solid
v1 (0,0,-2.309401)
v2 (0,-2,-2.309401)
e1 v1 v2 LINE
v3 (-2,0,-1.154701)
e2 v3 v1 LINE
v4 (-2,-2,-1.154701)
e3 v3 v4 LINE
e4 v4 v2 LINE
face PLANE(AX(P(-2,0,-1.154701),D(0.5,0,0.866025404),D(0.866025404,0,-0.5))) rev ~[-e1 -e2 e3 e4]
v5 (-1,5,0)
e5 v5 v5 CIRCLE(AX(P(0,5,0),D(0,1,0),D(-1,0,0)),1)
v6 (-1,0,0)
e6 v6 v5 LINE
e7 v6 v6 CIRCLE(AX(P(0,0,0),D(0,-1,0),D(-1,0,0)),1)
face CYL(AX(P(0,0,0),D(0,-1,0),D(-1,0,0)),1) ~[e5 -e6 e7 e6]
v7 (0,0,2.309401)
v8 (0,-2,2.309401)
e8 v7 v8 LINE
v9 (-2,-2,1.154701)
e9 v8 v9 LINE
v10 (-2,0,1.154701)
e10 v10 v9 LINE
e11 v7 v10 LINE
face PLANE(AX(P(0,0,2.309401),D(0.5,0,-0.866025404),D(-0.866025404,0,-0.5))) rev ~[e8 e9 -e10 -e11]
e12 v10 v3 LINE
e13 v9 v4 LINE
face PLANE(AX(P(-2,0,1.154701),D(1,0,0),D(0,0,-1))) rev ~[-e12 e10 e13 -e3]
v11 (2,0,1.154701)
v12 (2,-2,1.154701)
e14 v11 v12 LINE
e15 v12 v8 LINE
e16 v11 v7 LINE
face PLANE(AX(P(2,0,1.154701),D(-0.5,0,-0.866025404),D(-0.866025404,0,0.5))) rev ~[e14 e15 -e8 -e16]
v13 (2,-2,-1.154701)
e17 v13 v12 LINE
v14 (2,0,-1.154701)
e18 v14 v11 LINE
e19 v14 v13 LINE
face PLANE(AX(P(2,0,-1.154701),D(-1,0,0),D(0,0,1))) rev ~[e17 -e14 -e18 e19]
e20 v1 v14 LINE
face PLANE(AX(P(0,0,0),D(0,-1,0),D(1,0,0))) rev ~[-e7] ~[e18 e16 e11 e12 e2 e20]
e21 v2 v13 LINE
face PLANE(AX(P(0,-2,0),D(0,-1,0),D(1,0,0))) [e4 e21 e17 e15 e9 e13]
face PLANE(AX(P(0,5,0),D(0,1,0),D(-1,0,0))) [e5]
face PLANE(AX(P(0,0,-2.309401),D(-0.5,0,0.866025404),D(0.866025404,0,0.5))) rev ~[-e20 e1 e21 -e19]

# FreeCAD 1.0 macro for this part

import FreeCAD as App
import Part
import Sketcher

V = App.Vector
Q = App.Units.Quantity

doc = App.newDocument("Part")
body = doc.addObject("PartDesign::Body", "Body")

sketch1 = body.newObject("Sketcher::SketchObject", "Sketch")
sketch1.AttachmentSupport = (doc.getObject("XZ_Plane"), [""])
sketch1.MapMode = "FlatFace"
sketch1.addGeometry([
    Part.LineSegment(V(-2, 1.2, 0), V(-2, -1.2, 0)),
    Part.LineSegment(V(-2, -1.2, 0), V(0, -2.3, 0)),
    Part.LineSegment(V(0, -2.3, 0), V(2, -1.2, 0)),
    Part.LineSegment(V(2, -1.2, 0), V(2, 1.2, 0)),
    Part.LineSegment(V(2, 1.2, 0), V(0, 2.3, 0)),
    Part.LineSegment(V(0, 2.3, 0), V(-2, 1.2, 0)),
], False)
sketch1.addConstraint([
    Sketcher.Constraint("Coincident", 0, 2, 1, 1),
    Sketcher.Constraint("Coincident", 1, 2, 2, 1),
    Sketcher.Constraint("Coincident", 2, 2, 3, 1),
    Sketcher.Constraint("Coincident", 3, 2, 4, 1),
    Sketcher.Constraint("Coincident", 4, 2, 5, 1),
    Sketcher.Constraint("Coincident", 5, 2, 0, 1),
    Sketcher.Constraint("Vertical", 0),
    Sketcher.Constraint("Vertical", 3),
    Sketcher.Constraint("Symmetric", 0, 2, 3, 2, -1, 1),
    Sketcher.Constraint("Symmetric", 1, 2, 4, 2, -1, 1),
    Sketcher.Constraint("PointOnObject", 1, 2, -2),
    Sketcher.Constraint("Parallel", 2, 5),
    Sketcher.Constraint("Horizontal", 0, 2, 2, 2),
    Sketcher.Constraint("Angle", 1, Q("-30 deg")),
    Sketcher.Constraint("DistanceX", 0, 2, -1, 1, Q("2 mm")),
    Sketcher.Constraint("DistanceY", 0, 2, 0, 1, Q("2.309401 mm")),
])
pad1 = body.newObject("PartDesign::Pad", "Pad")
pad1.Profile = sketch1
pad1.Length = 2

sketch2 = body.newObject("Sketcher::SketchObject", "Sketch001")
sketch2.AttachmentSupport = (doc.getObject("XZ_Plane"), [""])
sketch2.MapMode = "FlatFace"
sketch2.addGeometry(Part.Circle(V(0, 0, 0), V(0, 0, 1), 1), False)
sketch2.addConstraint([
    Sketcher.Constraint("Coincident", 0, 3, -1, 1),
    Sketcher.Constraint("Diameter", 0, Q("2 mm")),
])
pad2 = body.newObject("PartDesign::Pad", "Pad001")
pad2.Profile = sketch2
pad2.Length = 5
pad2.Reversed = True

sketch3 = body.newObject("Sketcher::SketchObject", "Sketch002")
sketch3.AttachmentSupport = (doc.getObject("XZ_Plane"), [""])
sketch3.MapMode = "FlatFace"
sketch3.addGeometry([
    Part.LineSegment(V(-2, 1.2, 0), V(-2, -1.2, 0)),
    Part.LineSegment(V(-2, -1.2, 0), V(0, -2.3, 0)),
    Part.LineSegment(V(0, -2.3, 0), V(2, -1.2, 0)),
    Part.LineSegment(V(2, -1.2, 0), V(2, 1.2, 0)),
    Part.LineSegment(V(2, 1.2, 0), V(0, 2.3, 0)),
    Part.LineSegment(V(0, 2.3, 0), V(-2, 1.2, 0)),
    Part.Circle(V(0, 0, 0), V(0, 0, 1), 1),
], False)
sketch3.addConstraint([
    Sketcher.Constraint("Coincident", 0, 2, 1, 1),
    Sketcher.Constraint("Coincident", 1, 2, 2, 1),
    Sketcher.Constraint("Coincident", 2, 2, 3, 1),
    Sketcher.Constraint("Coincident", 3, 2, 4, 1),
    Sketcher.Constraint("Coincident", 4, 2, 5, 1),
    Sketcher.Constraint("Coincident", 5, 2, 0, 1),
    Sketcher.Constraint("Vertical", 0),
    Sketcher.Constraint("Vertical", 3),
    Sketcher.Constraint("Coincident", 6, 3, -1, 1),
    Sketcher.Constraint("Symmetric", 0, 2, 3, 2, -1, 1),
    Sketcher.Constraint("Symmetric", 1, 2, 4, 2, -1, 1),
    Sketcher.Constraint("PointOnObject", 1, 2, -2),
    Sketcher.Constraint("Parallel", 2, 5),
    Sketcher.Constraint("Horizontal", 0, 2, 2, 2),
    Sketcher.Constraint("Diameter", 6, Q("2 mm")),
    Sketcher.Constraint("Angle", 1, Q("-30 deg")),
    Sketcher.Constraint("DistanceX", 0, 2, -1, 1, Q("2 mm")),
    Sketcher.Constraint("DistanceY", 0, 2, 0, 1, Q("2.309401 mm")),
])
pad3 = body.newObject("PartDesign::Pad", "Pad002")
pad3.Profile = sketch3
pad3.Length = 2

doc.recompute()
